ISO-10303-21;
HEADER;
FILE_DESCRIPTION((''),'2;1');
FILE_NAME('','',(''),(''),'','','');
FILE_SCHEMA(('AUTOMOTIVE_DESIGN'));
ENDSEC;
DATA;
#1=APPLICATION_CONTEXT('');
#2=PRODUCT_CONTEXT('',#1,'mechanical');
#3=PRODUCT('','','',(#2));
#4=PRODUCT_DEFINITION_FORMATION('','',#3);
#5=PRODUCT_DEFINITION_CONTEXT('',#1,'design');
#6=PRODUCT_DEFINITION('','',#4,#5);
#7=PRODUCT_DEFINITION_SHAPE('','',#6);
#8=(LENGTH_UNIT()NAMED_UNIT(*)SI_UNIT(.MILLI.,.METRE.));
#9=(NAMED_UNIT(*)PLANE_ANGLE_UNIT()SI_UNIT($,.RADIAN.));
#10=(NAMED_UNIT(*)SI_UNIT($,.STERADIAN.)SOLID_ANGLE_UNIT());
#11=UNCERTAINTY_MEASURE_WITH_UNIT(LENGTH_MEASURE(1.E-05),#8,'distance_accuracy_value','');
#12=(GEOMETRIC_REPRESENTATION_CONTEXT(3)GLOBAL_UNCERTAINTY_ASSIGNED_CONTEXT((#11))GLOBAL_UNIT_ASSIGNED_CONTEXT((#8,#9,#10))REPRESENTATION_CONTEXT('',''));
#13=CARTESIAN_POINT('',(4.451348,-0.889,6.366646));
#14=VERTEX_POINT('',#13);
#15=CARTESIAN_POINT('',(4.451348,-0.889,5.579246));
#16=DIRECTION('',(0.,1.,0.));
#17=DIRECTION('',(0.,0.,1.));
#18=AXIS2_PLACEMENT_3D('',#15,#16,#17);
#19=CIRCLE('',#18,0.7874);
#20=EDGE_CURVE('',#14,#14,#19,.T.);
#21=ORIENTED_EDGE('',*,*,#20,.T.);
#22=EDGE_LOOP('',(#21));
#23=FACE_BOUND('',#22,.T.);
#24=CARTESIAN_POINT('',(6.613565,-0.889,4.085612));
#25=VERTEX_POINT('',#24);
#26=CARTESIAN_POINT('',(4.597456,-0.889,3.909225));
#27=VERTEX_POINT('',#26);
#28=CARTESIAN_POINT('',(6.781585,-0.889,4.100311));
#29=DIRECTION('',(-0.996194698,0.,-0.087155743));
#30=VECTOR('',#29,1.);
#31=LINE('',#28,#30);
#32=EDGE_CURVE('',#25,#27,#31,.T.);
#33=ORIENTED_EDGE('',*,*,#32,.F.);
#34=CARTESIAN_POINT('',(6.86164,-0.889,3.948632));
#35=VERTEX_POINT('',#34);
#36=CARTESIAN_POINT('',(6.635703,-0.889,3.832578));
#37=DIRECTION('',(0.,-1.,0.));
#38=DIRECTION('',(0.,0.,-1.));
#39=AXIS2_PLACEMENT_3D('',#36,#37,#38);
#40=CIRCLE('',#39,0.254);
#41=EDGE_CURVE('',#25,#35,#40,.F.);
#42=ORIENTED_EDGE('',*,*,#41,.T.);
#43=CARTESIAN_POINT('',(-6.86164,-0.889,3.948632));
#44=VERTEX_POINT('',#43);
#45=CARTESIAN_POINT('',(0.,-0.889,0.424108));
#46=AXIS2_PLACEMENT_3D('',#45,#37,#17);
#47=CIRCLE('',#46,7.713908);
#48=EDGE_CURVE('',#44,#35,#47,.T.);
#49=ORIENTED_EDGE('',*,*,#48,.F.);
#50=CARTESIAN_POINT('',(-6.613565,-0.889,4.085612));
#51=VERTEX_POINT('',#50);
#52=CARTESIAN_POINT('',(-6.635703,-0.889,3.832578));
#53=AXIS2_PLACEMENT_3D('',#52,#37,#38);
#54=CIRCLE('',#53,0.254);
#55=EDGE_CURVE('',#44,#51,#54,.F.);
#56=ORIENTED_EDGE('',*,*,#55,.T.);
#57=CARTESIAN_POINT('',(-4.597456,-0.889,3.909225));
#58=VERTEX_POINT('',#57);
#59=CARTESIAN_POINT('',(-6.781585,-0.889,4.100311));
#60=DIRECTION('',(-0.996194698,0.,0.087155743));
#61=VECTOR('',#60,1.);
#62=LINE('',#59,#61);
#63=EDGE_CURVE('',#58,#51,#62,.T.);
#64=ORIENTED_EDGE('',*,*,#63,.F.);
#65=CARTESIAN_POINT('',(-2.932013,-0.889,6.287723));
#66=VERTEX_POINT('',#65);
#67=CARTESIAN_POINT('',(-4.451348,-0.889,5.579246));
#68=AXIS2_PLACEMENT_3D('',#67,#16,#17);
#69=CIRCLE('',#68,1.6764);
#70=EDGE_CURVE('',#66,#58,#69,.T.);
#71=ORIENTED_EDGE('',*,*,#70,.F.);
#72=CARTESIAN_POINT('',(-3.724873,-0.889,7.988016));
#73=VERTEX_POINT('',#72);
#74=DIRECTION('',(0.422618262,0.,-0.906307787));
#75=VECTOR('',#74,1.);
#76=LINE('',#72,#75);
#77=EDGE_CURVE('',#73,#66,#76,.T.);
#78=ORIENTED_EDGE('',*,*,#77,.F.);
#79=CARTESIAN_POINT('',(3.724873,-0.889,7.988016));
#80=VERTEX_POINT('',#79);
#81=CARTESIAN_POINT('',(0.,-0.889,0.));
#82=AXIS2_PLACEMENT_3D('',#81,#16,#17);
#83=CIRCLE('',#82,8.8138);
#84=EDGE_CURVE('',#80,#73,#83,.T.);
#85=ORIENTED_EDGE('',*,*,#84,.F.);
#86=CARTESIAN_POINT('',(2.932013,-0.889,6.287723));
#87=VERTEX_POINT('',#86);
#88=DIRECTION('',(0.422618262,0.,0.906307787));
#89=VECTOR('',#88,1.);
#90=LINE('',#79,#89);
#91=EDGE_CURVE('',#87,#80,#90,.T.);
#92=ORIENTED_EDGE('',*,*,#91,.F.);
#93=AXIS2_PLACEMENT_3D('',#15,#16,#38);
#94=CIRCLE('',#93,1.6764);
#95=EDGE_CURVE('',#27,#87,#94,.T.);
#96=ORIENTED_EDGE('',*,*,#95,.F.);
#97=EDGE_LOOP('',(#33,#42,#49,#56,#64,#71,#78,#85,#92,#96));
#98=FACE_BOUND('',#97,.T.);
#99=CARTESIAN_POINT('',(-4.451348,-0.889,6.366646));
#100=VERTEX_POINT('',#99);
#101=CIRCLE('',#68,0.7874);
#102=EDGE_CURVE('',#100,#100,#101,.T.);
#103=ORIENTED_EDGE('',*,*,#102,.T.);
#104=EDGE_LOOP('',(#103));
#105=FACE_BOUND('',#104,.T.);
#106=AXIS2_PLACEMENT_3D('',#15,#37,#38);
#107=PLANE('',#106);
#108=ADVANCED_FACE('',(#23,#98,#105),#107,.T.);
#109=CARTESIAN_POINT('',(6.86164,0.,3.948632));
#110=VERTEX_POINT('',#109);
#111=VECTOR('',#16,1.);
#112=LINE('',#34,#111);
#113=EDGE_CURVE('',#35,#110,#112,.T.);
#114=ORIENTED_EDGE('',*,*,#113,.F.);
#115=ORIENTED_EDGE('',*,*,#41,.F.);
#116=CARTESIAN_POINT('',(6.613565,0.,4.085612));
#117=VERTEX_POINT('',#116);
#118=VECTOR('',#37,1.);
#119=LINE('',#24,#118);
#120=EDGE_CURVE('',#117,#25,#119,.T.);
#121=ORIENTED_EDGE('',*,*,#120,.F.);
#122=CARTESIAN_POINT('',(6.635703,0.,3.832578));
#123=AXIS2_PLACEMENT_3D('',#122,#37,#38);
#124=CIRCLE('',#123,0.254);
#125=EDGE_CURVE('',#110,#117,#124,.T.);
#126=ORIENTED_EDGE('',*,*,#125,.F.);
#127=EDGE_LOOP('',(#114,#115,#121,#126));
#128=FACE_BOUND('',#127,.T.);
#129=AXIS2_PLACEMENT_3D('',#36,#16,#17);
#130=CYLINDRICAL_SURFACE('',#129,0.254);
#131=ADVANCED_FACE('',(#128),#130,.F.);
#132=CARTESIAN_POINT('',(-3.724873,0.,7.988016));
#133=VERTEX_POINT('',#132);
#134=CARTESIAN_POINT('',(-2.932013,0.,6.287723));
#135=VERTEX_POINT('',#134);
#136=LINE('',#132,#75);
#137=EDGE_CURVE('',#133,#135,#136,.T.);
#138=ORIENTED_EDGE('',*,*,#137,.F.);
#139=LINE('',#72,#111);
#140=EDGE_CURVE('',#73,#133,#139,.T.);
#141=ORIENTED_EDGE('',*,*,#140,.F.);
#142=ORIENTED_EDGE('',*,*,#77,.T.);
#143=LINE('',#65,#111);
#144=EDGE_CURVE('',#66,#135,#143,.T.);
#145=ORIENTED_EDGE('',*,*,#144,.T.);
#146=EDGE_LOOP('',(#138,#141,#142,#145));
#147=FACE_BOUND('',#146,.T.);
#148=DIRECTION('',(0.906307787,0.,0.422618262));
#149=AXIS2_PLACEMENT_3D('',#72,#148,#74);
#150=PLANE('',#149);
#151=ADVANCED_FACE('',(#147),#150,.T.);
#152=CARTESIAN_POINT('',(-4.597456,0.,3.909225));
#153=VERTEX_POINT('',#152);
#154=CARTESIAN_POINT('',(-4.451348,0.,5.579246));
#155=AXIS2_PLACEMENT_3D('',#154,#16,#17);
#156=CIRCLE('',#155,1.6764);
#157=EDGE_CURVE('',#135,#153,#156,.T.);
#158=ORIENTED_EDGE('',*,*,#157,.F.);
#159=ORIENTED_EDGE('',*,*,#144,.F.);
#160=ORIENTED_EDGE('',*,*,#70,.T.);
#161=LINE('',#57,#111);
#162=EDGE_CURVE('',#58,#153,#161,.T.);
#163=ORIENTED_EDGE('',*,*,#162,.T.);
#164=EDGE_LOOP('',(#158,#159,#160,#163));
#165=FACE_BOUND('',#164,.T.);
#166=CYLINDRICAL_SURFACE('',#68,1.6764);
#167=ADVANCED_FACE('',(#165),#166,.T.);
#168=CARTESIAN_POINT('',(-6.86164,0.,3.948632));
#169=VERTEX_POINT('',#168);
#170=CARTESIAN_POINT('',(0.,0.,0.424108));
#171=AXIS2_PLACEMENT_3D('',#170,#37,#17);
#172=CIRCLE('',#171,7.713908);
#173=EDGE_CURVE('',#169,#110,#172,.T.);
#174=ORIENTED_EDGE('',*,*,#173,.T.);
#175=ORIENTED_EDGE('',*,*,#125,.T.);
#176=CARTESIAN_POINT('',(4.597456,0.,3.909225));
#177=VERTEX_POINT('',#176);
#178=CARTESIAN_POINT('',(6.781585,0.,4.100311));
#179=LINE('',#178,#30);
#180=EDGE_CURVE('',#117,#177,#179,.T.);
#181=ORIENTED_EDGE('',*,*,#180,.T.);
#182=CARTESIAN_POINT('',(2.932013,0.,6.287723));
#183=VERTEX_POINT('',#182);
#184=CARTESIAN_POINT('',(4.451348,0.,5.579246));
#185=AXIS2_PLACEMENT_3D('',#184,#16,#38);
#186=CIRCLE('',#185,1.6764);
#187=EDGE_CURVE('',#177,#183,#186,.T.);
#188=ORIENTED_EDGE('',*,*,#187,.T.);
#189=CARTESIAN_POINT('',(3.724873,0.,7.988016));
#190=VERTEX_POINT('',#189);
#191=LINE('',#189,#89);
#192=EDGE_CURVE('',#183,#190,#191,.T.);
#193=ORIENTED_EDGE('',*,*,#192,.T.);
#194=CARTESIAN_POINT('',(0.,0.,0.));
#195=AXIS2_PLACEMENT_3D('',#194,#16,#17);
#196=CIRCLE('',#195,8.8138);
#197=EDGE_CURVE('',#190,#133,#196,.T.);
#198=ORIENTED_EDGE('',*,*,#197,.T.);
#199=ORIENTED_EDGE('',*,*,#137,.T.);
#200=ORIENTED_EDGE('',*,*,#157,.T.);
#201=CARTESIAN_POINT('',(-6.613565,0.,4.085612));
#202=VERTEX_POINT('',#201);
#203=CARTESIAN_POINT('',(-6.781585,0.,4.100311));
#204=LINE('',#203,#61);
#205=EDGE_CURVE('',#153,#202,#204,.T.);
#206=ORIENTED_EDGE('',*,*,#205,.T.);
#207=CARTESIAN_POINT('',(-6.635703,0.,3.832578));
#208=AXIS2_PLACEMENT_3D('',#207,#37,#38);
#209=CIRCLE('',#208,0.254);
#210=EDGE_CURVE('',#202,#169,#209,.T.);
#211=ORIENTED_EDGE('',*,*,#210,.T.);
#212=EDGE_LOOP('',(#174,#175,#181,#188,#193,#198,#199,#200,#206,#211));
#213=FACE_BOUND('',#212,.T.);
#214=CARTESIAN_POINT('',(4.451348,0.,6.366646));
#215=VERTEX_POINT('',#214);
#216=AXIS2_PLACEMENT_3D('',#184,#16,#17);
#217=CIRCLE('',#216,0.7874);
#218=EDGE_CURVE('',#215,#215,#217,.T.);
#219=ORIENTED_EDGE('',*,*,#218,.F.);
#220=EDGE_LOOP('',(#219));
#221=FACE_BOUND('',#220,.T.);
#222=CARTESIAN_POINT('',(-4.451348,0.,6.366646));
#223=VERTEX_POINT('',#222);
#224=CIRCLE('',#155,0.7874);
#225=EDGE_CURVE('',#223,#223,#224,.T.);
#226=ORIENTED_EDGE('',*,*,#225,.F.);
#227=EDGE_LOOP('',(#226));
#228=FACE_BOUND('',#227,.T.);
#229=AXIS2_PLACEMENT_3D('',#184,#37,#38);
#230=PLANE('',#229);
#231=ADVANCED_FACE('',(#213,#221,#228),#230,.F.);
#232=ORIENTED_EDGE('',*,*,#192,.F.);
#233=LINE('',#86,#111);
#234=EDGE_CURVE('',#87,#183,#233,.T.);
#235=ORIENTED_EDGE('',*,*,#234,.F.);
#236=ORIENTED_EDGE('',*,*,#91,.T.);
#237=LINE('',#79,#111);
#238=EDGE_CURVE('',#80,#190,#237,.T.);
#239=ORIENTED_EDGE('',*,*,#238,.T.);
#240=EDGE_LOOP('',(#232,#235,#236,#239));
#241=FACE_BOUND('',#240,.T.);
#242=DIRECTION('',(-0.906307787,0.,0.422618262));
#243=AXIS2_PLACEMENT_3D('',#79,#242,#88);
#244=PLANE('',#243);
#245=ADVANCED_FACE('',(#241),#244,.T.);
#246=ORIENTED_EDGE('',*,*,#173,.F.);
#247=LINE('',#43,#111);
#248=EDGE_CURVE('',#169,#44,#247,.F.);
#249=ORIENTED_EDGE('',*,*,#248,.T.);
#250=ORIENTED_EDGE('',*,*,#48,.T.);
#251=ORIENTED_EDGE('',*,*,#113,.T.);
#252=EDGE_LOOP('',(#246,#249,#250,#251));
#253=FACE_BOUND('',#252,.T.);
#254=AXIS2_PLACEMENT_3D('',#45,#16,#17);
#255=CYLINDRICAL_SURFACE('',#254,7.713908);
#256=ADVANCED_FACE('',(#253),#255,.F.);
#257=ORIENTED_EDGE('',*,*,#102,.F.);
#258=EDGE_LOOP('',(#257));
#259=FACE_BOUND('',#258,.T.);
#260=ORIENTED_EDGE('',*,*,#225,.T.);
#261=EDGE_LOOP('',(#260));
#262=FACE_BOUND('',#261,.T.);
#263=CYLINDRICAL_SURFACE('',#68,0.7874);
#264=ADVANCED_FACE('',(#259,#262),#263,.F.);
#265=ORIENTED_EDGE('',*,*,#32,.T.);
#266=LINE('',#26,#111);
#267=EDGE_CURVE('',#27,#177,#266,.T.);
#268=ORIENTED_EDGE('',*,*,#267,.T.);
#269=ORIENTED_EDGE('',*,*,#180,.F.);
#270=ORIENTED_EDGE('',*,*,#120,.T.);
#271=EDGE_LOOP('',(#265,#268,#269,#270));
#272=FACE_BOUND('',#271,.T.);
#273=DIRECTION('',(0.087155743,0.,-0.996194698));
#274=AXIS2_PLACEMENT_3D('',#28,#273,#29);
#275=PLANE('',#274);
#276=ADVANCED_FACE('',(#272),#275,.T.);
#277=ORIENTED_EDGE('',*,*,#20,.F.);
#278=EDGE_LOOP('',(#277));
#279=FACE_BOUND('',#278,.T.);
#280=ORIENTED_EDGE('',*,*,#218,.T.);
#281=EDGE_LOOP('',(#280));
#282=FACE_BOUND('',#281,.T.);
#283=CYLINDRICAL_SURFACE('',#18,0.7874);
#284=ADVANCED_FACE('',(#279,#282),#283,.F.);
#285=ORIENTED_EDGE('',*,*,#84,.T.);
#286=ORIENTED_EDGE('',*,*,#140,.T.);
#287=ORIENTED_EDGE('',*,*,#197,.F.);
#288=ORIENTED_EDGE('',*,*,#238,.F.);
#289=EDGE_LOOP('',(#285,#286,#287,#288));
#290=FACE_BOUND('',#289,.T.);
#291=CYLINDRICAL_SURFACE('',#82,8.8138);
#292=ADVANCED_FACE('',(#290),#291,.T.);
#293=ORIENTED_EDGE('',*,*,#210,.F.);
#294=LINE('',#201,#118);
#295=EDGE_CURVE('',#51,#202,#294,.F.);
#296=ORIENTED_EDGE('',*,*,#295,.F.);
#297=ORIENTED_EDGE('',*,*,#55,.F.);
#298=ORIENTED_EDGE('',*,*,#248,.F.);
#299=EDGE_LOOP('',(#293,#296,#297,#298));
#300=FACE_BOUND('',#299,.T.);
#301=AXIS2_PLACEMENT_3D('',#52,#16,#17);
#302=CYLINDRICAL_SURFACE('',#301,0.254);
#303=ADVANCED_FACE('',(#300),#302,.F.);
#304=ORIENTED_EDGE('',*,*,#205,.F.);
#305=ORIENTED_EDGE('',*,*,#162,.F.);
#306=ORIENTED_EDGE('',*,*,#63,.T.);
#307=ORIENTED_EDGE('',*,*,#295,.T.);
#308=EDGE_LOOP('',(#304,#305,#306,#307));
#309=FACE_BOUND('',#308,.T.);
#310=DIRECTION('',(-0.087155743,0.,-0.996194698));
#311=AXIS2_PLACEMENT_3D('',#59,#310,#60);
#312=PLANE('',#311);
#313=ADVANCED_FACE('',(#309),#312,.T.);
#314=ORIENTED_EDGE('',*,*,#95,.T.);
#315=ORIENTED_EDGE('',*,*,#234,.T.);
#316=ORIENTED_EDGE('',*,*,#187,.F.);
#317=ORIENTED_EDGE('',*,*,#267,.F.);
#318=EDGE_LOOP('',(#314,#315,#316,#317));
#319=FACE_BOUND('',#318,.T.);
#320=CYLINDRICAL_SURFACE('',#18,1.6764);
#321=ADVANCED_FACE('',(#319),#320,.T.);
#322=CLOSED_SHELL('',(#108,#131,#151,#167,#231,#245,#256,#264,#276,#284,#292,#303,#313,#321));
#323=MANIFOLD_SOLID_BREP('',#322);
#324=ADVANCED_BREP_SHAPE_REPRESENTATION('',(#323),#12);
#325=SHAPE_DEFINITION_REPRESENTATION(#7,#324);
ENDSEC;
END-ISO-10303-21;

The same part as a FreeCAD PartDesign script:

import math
import FreeCAD as App
import Part
import Sketcher

V = App.Vector
Q = App.Units.Quantity


def edges_at(feature, points):
    """Names of the edges that pass closest to the given points."""
    edges = feature.Shape.Edges
    near = lambda p: min(range(len(edges)), key=lambda i: edges[i].distToShape(Part.Vertex(*p))[0])
    return sorted({f"Edge{near(p) + 1}" for p in points})

doc = App.newDocument("Part")
body = doc.addObject("PartDesign::Body", "Body")

sketch1 = body.newObject("Sketcher::SketchObject", "Sketch")
sketch1.AttachmentSupport = (doc.getObject("XZ_Plane"), [""])
sketch1.MapMode = "FlatFace"
sketch1.addGeometry([
    Part.LineSegment(V(2.9, 6.3, 0), V(3.7, 8, 0)),
    Part.ArcOfCircle(Part.Circle(V(0, 0, 0), V(0, 0, 1), 8.8), math.radians(115), math.radians(425)),
    Part.LineSegment(V(-3.7, 8, 0), V(-2.9, 6.3, 0)),
    Part.ArcOfCircle(Part.Circle(V(-4.5, 5.6, 0), V(0, 0, 1), 1.7), math.radians(-95), math.radians(25)),
    Part.LineSegment(V(-4.6, 3.9, 0), V(-6.8, 4.1, 0)),
    Part.ArcOfCircle(Part.Circle(V(0, 0.4, 0), V(0, 0, 1), 7.7), math.radians(152), math.radians(388)),
    Part.LineSegment(V(6.8, 4.1, 0), V(4.6, 3.9, 0)),
    Part.ArcOfCircle(Part.Circle(V(4.5, 5.6, 0), V(0, 0, 1), 1.7), math.radians(155), math.radians(275)),
    Part.Circle(V(4.5, 5.6, 0), V(0, 0, 1), 0.8),
    Part.Circle(V(-4.5, 5.6, 0), V(0, 0, 1), 0.8),
], False)
sketch1.addConstraint([
    Sketcher.Constraint("Coincident", 0, 2, 1, 2),
    Sketcher.Constraint("Coincident", 1, 1, 2, 1),
    Sketcher.Constraint("Tangent", 2, 2, 3, 2),
    Sketcher.Constraint("Tangent", 3, 1, 4, 1),
    Sketcher.Constraint("Coincident", 4, 2, 5, 1),
    Sketcher.Constraint("Coincident", 5, 2, 6, 1),
    Sketcher.Constraint("Tangent", 6, 2, 7, 2),
    Sketcher.Constraint("Tangent", 7, 1, 0, 1),
    Sketcher.Constraint("Coincident", 1, 3, -1, 1),
    Sketcher.Constraint("Coincident", 8, 3, 7, 3),
    Sketcher.Constraint("Coincident", 9, 3, 3, 3),
    Sketcher.Constraint("Equal", 3, 7),
    Sketcher.Constraint("Equal", 8, 9),
    Sketcher.Constraint("Symmetric", 3, 3, 7, 3, -2),
    Sketcher.Constraint("Symmetric", 4, 2, 5, 2, -2),
    Sketcher.Constraint("Horizontal", 0, 2, 1, 1),
    Sketcher.Constraint("Diameter", 8, Q("0.062 in")),
    Sketcher.Constraint("Angle", 0, Q("65 deg")),
    Sketcher.Constraint("Angle", 4, Q("175 deg")),
    Sketcher.Constraint("Radius", 1, Q("0.347 in")),
    Sketcher.Constraint("Radius", 3, Q("0.066 in")),
    Sketcher.Constraint("Radius", 5, Q("7.713908 mm")),
    Sketcher.Constraint("DistanceX", 3, 3, 7, 3, Q("0.3504998 in")),
    Sketcher.Constraint("DistanceY", -1, 1, 4, 2, Q("4.100311 mm")),
    Sketcher.Constraint("DistanceY", 7, 3, 0, 2, Q("2.40877 mm")),
])
pad1 = body.newObject("PartDesign::Pad", "Pad")
pad1.Profile = sketch1
pad1.Length = Q("0.035 in")
doc.recompute()

fillet = body.newObject("PartDesign::Fillet", "Fillet")
fillet.Base = (pad1, edges_at(pad1, [(6.782, -0.445, 4.1), (-6.782, -0.445, 4.1)]))
fillet.Radius = Q("0.01 in")

doc.recompute()
